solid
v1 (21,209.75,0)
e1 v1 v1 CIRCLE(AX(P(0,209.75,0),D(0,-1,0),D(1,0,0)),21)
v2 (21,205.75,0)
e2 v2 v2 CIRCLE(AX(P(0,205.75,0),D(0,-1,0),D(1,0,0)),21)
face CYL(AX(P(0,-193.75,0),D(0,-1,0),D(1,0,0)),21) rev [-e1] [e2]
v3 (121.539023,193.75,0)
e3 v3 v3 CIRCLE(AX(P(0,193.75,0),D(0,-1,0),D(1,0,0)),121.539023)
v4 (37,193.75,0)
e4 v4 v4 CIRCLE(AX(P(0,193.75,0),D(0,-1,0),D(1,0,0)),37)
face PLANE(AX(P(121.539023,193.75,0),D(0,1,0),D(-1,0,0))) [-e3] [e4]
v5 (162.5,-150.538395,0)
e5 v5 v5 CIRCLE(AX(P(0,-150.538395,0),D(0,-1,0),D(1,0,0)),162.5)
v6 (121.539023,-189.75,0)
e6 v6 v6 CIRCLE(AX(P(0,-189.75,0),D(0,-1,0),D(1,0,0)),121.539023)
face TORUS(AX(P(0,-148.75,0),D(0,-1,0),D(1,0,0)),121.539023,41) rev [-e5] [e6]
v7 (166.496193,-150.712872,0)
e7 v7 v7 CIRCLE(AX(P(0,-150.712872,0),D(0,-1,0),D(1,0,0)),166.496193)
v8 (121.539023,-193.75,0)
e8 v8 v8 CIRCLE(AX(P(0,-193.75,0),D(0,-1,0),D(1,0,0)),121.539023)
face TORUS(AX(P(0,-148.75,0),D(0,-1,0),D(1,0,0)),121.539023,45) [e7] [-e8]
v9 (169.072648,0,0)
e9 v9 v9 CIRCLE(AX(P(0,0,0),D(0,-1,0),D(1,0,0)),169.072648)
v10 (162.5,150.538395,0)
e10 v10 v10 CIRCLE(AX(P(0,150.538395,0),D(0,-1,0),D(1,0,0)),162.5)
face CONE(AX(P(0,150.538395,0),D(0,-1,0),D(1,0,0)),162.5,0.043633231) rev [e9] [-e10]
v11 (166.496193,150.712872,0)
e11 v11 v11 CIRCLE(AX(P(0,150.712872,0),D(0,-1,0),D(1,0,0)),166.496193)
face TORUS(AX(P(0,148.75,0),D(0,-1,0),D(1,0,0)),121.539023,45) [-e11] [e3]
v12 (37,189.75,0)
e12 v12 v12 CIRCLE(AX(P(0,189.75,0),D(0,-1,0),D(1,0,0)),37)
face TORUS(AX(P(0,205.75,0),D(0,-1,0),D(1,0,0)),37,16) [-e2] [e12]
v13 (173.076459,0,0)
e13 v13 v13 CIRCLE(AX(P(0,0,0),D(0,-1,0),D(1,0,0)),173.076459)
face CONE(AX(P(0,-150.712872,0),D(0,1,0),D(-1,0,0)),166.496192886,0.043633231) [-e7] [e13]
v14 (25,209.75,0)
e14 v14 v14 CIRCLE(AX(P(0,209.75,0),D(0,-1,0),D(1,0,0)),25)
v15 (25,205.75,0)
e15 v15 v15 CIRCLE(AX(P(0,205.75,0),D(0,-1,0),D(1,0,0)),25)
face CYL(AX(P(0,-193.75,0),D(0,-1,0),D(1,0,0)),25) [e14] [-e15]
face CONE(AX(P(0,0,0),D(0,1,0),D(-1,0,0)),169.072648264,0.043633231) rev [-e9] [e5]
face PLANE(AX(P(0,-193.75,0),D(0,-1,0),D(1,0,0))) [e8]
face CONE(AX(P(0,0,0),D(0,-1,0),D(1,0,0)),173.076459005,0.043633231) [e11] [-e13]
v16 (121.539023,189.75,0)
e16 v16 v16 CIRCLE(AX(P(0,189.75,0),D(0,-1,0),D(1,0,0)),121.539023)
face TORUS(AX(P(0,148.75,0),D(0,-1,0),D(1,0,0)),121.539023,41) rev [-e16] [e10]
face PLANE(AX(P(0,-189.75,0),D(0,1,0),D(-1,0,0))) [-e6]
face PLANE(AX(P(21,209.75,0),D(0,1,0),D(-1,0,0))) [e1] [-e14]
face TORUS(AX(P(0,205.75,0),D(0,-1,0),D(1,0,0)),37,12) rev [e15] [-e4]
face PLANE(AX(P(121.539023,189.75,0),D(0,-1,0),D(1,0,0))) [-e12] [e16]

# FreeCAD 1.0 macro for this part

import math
import FreeCAD as App
import Part
import Sketcher

V = App.Vector
Q = App.Units.Quantity

doc = App.newDocument("Part")
params = doc.addObject("Spreadsheet::Sheet", "Params")
for row, (alias, value) in enumerate([
    ("sketch1_radius", "45 mm"),
    ("sketch1_radius2", "12 mm"),
    ("sketch1_radius3", "16 mm"),
    ("revolution_angle", "360 deg"),
], start=1):
    params.set(f"A{row}", alias)
    params.set(f"B{row}", "=" + value)
    params.setAlias(f"B{row}", alias)

body = doc.addObject("PartDesign::Body", "Body")

sketch1 = doc.addObject("Sketcher::SketchObject", "Sketch")
body.addObject(sketch1)
sketch1.AttachmentSupport = (doc.XY_Plane, [""])
sketch1.MapMode = "FlatFace"
sketch1.addGeometry(Part.LineSegment(V(0, -193.8, 0), V(121.5, -193.8, 0)), False)
sketch1.addGeometry(Part.ArcOfCircle(Part.Circle(V(121.5, -148.8, 0), V(0, 0, 1), 45), math.radians(-90), math.radians(-2)), False)
sketch1.addGeometry(Part.LineSegment(V(166.5, -150.7, 0), V(173.1, 0, 0)), False)
sketch1.addGeometry(Part.LineSegment(V(173.1, 0, 0), V(166.5, 150.7, 0)), False)
sketch1.addGeometry(Part.ArcOfCircle(Part.Circle(V(121.5, 148.8, 0), V(0, 0, 1), 45), math.radians(2), math.radians(90)), False)
sketch1.addGeometry(Part.LineSegment(V(121.5, 193.8, 0), V(37, 193.8, 0)), False)
sketch1.addGeometry(Part.ArcOfCircle(Part.Circle(V(37, 205.8, 0), V(0, 0, 1), 12), math.radians(-180), math.radians(-90)), False)
sketch1.addGeometry(Part.LineSegment(V(25, 205.8, 0), V(25, 209.8, 0)), False)
sketch1.addGeometry(Part.LineSegment(V(25, 209.8, 0), V(21, 209.8, 0)), False)
sketch1.addGeometry(Part.LineSegment(V(21, 209.8, 0), V(21, 205.8, 0)), False)
sketch1.addGeometry(Part.ArcOfCircle(Part.Circle(V(37, 205.8, 0), V(0, 0, 1), 16), math.radians(180), math.radians(270)), False)
sketch1.addGeometry(Part.LineSegment(V(37, 189.8, 0), V(121.5, 189.8, 0)), False)
sketch1.addGeometry(Part.ArcOfCircle(Part.Circle(V(121.5, 148.7, 0), V(0, 0, 1), 41), math.radians(3), math.radians(90)), False)
sketch1.addGeometry(Part.LineSegment(V(162.5, 150.5, 0), V(169.1, 0, 0)), False)
sketch1.addGeometry(Part.LineSegment(V(169.1, 0, 0), V(162.5, -150.5, 0)), False)
sketch1.addGeometry(Part.ArcOfCircle(Part.Circle(V(121.5, -148.7, 0), V(0, 0, 1), 41), math.radians(-90), math.radians(-3)), False)
sketch1.addGeometry(Part.LineSegment(V(121.5, -189.8, 0), V(0, -189.8, 0)), False)
sketch1.addGeometry(Part.LineSegment(V(0, -189.8, 0), V(0, -193.8, 0)), False)
sketch1.addConstraint(Sketcher.Constraint("Tangent", 0, 2, 1, 1))
sketch1.addConstraint(Sketcher.Constraint("Tangent", 1, 2, 2, 1))
sketch1.addConstraint(Sketcher.Constraint("Coincident", 2, 2, 3, 1))
sketch1.addConstraint(Sketcher.Constraint("Tangent", 3, 2, 4, 1))
sketch1.addConstraint(Sketcher.Constraint("Tangent", 4, 2, 5, 1))
sketch1.addConstraint(Sketcher.Constraint("Tangent", 5, 2, 6, 2))
sketch1.addConstraint(Sketcher.Constraint("Tangent", 6, 1, 7, 1))
sketch1.addConstraint(Sketcher.Constraint("Coincident", 7, 2, 8, 1))
sketch1.addConstraint(Sketcher.Constraint("Coincident", 8, 2, 9, 1))
sketch1.addConstraint(Sketcher.Constraint("Tangent", 9, 2, 10, 1))
sketch1.addConstraint(Sketcher.Constraint("Tangent", 10, 2, 11, 1))
sketch1.addConstraint(Sketcher.Constraint("Tangent", 11, 2, 12, 2))
sketch1.addConstraint(Sketcher.Constraint("Tangent", 12, 1, 13, 1))
sketch1.addConstraint(Sketcher.Constraint("Coincident", 13, 2, 14, 1))
sketch1.addConstraint(Sketcher.Constraint("Tangent", 14, 2, 15, 2))
sketch1.addConstraint(Sketcher.Constraint("Tangent", 15, 1, 16, 1))
sketch1.addConstraint(Sketcher.Constraint("Coincident", 16, 2, 17, 1))
sketch1.addConstraint(Sketcher.Constraint("Coincident", 17, 2, 0, 1))
sketch1.addConstraint(Sketcher.Constraint("Horizontal", 0))
sketch1.addConstraint(Sketcher.Constraint("Horizontal", 5))
sketch1.addConstraint(Sketcher.Constraint("Vertical", 7))
sketch1.addConstraint(Sketcher.Constraint("Horizontal", 8))
sketch1.addConstraint(Sketcher.Constraint("Vertical", 9))
sketch1.addConstraint(Sketcher.Constraint("Horizontal", 11))
sketch1.addConstraint(Sketcher.Constraint("Horizontal", 16))
sketch1.addConstraint(Sketcher.Constraint("Vertical", 17))
sketch1.addConstraint(Sketcher.Constraint("Coincident", 10, 3, 6, 3))
sketch1.addConstraint(Sketcher.Constraint("Coincident", 12, 3, 4, 3))
sketch1.addConstraint(Sketcher.Constraint("Coincident", 15, 3, 1, 3))
sketch1.addConstraint(Sketcher.Constraint("Equal", 1, 4))
sketch1.addConstraint(Sketcher.Constraint("Equal", 12, 15))
sketch1.addConstraint(Sketcher.Constraint("Symmetric", 1, 3, 4, 3, -1))
sketch1.addConstraint(Sketcher.Constraint("PointOnObject", 2, 2, -1))
sketch1.addConstraint(Sketcher.Constraint("PointOnObject", 13, 2, -1))
sketch1.addConstraint(Sketcher.Constraint("PointOnObject", 16, 2, -2))
sketch1.addConstraint(Sketcher.Constraint("Parallel", 3, 13))
sketch1.addConstraint(Sketcher.Constraint("Equal", 8, 7))
sketch1.addConstraint(Sketcher.Constraint("Radius", 1, 45.0))
sketch1.addConstraint(Sketcher.Constraint("Radius", 6, 12.0))
sketch1.addConstraint(Sketcher.Constraint("Radius", 10, 16.0))
sketch1.addConstraint(Sketcher.Constraint("DistanceX", -1, 1, 6, 3, 37.0))
sketch1.addConstraint(Sketcher.Constraint("Angle", 2, Q("87.5 deg")))
sketch1.addConstraint(Sketcher.Constraint("DistanceX", -1, 1, 12, 1, 162.5))
sketch1.addConstraint(Sketcher.Constraint("DistanceY", 1, 3, 4, 3, 297.5))
sketch1.setExpression("Constraints[37]", "Params.sketch1_radius")
sketch1.setExpression("Constraints[38]", "Params.sketch1_radius2")
sketch1.setExpression("Constraints[39]", "Params.sketch1_radius3")
revolution = doc.addObject("PartDesign::Revolution", "Revolution")
body.addObject(revolution)
revolution.Profile = sketch1
revolution.ReferenceAxis = (sketch1, ["V_Axis"])
revolution.setExpression("Angle", "Params.revolution_angle")

doc.recompute()
